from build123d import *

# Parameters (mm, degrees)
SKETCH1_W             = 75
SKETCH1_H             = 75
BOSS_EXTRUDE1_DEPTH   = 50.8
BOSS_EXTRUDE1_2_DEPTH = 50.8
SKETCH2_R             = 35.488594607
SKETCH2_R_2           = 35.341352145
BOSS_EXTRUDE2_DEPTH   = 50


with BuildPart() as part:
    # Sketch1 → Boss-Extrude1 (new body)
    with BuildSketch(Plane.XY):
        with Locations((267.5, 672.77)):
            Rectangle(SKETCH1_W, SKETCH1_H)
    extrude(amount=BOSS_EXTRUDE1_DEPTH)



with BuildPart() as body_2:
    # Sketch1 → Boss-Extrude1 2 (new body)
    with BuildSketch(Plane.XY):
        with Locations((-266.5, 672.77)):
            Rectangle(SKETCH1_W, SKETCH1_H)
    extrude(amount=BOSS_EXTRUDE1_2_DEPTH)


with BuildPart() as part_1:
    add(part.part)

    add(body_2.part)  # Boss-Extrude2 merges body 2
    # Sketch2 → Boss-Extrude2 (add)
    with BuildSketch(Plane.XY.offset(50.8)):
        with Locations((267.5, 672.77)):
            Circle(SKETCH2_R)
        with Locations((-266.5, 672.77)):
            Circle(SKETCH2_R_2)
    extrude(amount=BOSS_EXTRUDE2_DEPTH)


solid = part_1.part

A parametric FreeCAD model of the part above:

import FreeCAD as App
import Part
import Sketcher
from FreeCAD import Vector
Q = App.Units.Quantity


def add_polygon(sketch, points):
    """Adds a closed chain of lines whose ends are joined by coincident constraints."""
    first, n = sketch.GeometryCount, len(points)
    for a, b in zip(points, points[1:] + points[:1]):
        sketch.addGeometry(Part.LineSegment(App.Vector(*a, 0), App.Vector(*b, 0)), False)
    for i in range(n):
        sketch.addConstraint(Sketcher.Constraint("Coincident", first + i, 2, first + (i + 1) % n, 1))

doc = App.newDocument("Part")
body = doc.addObject("PartDesign::Body", "Body")

sketch1 = body.newObject("Sketcher::SketchObject", "Sketch")
sketch1.AttachmentSupport = (doc.getObject("XY_Plane"), [""])
sketch1.MapMode = "FlatFace"
add_polygon(sketch1, [(230, 710.27), (230, 635.27), (305, 635.27), (305, 710.27)])
sketch1.addConstraint([
    Sketcher.Constraint("Vertical", 0),
    Sketcher.Constraint("Horizontal", 1),
    Sketcher.Constraint("Vertical", 2),
    Sketcher.Constraint("Horizontal", 3),
    Sketcher.Constraint("Equal", 3, 0),
    Sketcher.Constraint("DistanceX", 1, 1, 1, 2, Q("75 mm")),
    Sketcher.Constraint("DistanceX", -1, 1, 0, 2, Q("230 mm")),
    Sketcher.Constraint("DistanceY", -1, 1, 0, 2, Q("635.27 mm")),
])
pad1 = body.newObject("PartDesign::Pad", "Pad")
pad1.Profile = sketch1
pad1.Length = 50.8
body2 = doc.addObject("PartDesign::Body", "Body001")

sketch2 = body2.newObject("Sketcher::SketchObject", "Sketch001")
sketch2.AttachmentSupport = (doc.getObject("XY_Plane001"), [""])
sketch2.MapMode = "FlatFace"
add_polygon(sketch2, [(-304, 710.27), (-304, 635.27), (-229, 635.27), (-229, 710.27)])
sketch2.addConstraint([
    Sketcher.Constraint("Vertical", 0),
    Sketcher.Constraint("Horizontal", 1),
    Sketcher.Constraint("Vertical", 2),
    Sketcher.Constraint("Horizontal", 3),
    Sketcher.Constraint("Equal", 3, 0),
    Sketcher.Constraint("DistanceX", 1, 1, 1, 2, Q("75 mm")),
    Sketcher.Constraint("DistanceX", 0, 2, -1, 1, Q("304 mm")),
    Sketcher.Constraint("DistanceY", -1, 1, 0, 2, Q("635.27 mm")),
])
pad2 = body2.newObject("PartDesign::Pad", "Pad001")
pad2.Profile = sketch2
pad2.Length = 50.8
body.AllowCompound = True
doc.recompute()

boolean = body.newObject("PartDesign::Boolean", "Boolean")
boolean.Type = "Fuse"
boolean.addObjects([body2])

sketch3 = body.newObject("Sketcher::SketchObject", "Sketch002")
sketch3.AttachmentSupport = (doc.getObject("XY_Plane"), [""])
sketch3.MapMode = "FlatFace"
sketch3.AttachmentOffset = App.Placement(Vector(0, 0, 50.8), App.Rotation())
sketch3.addGeometry([
    Part.Circle(Vector(267.5, 672.77, 0), Vector(0, 0, 1), 35.488595),
    Part.Circle(Vector(-266.5, 672.77, 0), Vector(0, 0, 1), 35.341352),
], False)
sketch3.addConstraint([
    Sketcher.Constraint("Horizontal", 0, 3, 1, 3),
    Sketcher.Constraint("DistanceX", 1, 3, 0, 3, Q("534 mm")),
    Sketcher.Constraint("DistanceX", -1, 1, 0, 3, Q("267.5 mm")),
    Sketcher.Constraint("Diameter", 0, Q("70.977189 mm")),
    Sketcher.Constraint("DistanceY", -1, 1, 0, 3, Q("672.77 mm")),
    Sketcher.Constraint("Diameter", 1, Q("70.682704 mm")),
])
pad3 = body.newObject("PartDesign::Pad", "Pad002")
pad3.Profile = sketch3
pad3.Length = 50

doc.recompute()
